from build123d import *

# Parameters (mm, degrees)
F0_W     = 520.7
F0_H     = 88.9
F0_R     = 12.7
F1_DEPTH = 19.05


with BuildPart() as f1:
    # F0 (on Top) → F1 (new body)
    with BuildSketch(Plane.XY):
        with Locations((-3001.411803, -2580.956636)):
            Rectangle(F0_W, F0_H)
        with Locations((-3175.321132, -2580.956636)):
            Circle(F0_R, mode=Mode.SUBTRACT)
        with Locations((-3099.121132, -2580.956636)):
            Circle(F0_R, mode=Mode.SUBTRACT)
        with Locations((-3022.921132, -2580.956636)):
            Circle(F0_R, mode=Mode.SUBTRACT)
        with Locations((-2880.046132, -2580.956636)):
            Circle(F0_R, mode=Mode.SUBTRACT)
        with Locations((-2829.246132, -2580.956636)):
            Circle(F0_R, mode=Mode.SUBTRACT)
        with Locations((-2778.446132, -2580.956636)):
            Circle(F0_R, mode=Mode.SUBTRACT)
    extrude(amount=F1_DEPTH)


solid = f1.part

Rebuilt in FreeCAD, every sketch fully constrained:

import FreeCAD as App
import Part
import Sketcher
from FreeCAD import Vector
Q = App.Units.Quantity

doc = App.newDocument("Part")
body = doc.addObject("PartDesign::Body", "Body")

sketch1 = body.newObject("Sketcher::SketchObject", "Sketch")
sketch1.AttachmentSupport = (doc.getObject("XY_Plane"), [""])
sketch1.MapMode = "FlatFace"
sketch1.addGeometry(Part.LineSegment(Vector(-3261.761803, -2536.506636, 0), Vector(-3261.761803, -2625.406636, 0)), False)
sketch1.addGeometry(Part.LineSegment(Vector(-3261.761803, -2625.406636, 0), Vector(-2741.061803, -2625.406636, 0)), False)
sketch1.addGeometry(Part.LineSegment(Vector(-2741.061803, -2625.406636, 0), Vector(-2741.061803, -2536.506636, 0)), False)
sketch1.addGeometry(Part.LineSegment(Vector(-2741.061803, -2536.506636, 0), Vector(-3261.761803, -2536.506636, 0)), False)
sketch1.addGeometry(Part.Circle(Vector(-3175.321132, -2580.956636, 0), Vector(0, 0, 1), 12.7), False)
sketch1.addGeometry(Part.Circle(Vector(-3099.121132, -2580.956636, 0), Vector(0, 0, 1), 12.7), False)
sketch1.addGeometry(Part.Circle(Vector(-3022.921132, -2580.956636, 0), Vector(0, 0, 1), 12.7), False)
sketch1.addGeometry(Part.Circle(Vector(-2880.046132, -2580.956636, 0), Vector(0, 0, 1), 12.7), False)
sketch1.addGeometry(Part.Circle(Vector(-2829.246132, -2580.956636, 0), Vector(0, 0, 1), 12.7), False)
sketch1.addGeometry(Part.Circle(Vector(-2778.446132, -2580.956636, 0), Vector(0, 0, 1), 12.7), False)
sketch1.addConstraint(Sketcher.Constraint("Coincident", 0, 2, 1, 1))
sketch1.addConstraint(Sketcher.Constraint("Coincident", 1, 2, 2, 1))
sketch1.addConstraint(Sketcher.Constraint("Coincident", 2, 2, 3, 1))
sketch1.addConstraint(Sketcher.Constraint("Coincident", 3, 2, 0, 1))
sketch1.addConstraint(Sketcher.Constraint("Vertical", 0))
sketch1.addConstraint(Sketcher.Constraint("Horizontal", 1))
sketch1.addConstraint(Sketcher.Constraint("Vertical", 2))
sketch1.addConstraint(Sketcher.Constraint("Horizontal", 3))
sketch1.addConstraint(Sketcher.Constraint("Equal", 4, 5))
sketch1.addConstraint(Sketcher.Constraint("Equal", 5, 6))
sketch1.addConstraint(Sketcher.Constraint("Equal", 6, 7))
sketch1.addConstraint(Sketcher.Constraint("Equal", 7, 8))
sketch1.addConstraint(Sketcher.Constraint("Equal", 8, 9))
sketch1.addConstraint(Sketcher.Constraint("Horizontal", 4, 3, 5, 3))
sketch1.addConstraint(Sketcher.Constraint("Horizontal", 5, 3, 6, 3))
sketch1.addConstraint(Sketcher.Constraint("Horizontal", 6, 3, 7, 3))
sketch1.addConstraint(Sketcher.Constraint("Horizontal", 7, 3, 8, 3))
sketch1.addConstraint(Sketcher.Constraint("Horizontal", 8, 3, 9, 3))
sketch1.addConstraint(Sketcher.Constraint("Diameter", 4, Q("1 in")))
sketch1.addConstraint(Sketcher.Constraint("DistanceX", 1, 1, 1, 2, Q("20.5 in")))
sketch1.addConstraint(Sketcher.Constraint("DistanceY", 0, 2, 0, 1, Q("3.5 in")))
sketch1.addConstraint(Sketcher.Constraint("DistanceX", 4, 3, 5, 3, Q("3 in")))
sketch1.addConstraint(Sketcher.Constraint("DistanceX", 5, 3, 6, 3, Q("3 in")))
sketch1.addConstraint(Sketcher.Constraint("DistanceX", 7, 3, 8, 3, Q("2 in")))
sketch1.addConstraint(Sketcher.Constraint("DistanceX", 8, 3, 9, 3, Q("2 in")))
sketch1.addConstraint(Sketcher.Constraint("DistanceY", 0, 2, 4, 3, Q("1.75 in")))
sketch1.addConstraint(Sketcher.Constraint("DistanceX", 6, 3, 7, 3, Q("5.625 in")))
sketch1.addConstraint(Sketcher.Constraint("DistanceX", 6, 3, -1, 1, Q("3022.921132 mm")))
sketch1.addConstraint(Sketcher.Constraint("DistanceX", 0, 2, 4, 3, Q("86.440671 mm")))
sketch1.addConstraint(Sketcher.Constraint("DistanceY", 4, 3, -1, 1, Q("2580.956636 mm")))
pad1 = body.newObject("PartDesign::Pad", "Pad")
pad1.Profile = sketch1
pad1.Length = Q("0.75 in")

doc.recompute()
